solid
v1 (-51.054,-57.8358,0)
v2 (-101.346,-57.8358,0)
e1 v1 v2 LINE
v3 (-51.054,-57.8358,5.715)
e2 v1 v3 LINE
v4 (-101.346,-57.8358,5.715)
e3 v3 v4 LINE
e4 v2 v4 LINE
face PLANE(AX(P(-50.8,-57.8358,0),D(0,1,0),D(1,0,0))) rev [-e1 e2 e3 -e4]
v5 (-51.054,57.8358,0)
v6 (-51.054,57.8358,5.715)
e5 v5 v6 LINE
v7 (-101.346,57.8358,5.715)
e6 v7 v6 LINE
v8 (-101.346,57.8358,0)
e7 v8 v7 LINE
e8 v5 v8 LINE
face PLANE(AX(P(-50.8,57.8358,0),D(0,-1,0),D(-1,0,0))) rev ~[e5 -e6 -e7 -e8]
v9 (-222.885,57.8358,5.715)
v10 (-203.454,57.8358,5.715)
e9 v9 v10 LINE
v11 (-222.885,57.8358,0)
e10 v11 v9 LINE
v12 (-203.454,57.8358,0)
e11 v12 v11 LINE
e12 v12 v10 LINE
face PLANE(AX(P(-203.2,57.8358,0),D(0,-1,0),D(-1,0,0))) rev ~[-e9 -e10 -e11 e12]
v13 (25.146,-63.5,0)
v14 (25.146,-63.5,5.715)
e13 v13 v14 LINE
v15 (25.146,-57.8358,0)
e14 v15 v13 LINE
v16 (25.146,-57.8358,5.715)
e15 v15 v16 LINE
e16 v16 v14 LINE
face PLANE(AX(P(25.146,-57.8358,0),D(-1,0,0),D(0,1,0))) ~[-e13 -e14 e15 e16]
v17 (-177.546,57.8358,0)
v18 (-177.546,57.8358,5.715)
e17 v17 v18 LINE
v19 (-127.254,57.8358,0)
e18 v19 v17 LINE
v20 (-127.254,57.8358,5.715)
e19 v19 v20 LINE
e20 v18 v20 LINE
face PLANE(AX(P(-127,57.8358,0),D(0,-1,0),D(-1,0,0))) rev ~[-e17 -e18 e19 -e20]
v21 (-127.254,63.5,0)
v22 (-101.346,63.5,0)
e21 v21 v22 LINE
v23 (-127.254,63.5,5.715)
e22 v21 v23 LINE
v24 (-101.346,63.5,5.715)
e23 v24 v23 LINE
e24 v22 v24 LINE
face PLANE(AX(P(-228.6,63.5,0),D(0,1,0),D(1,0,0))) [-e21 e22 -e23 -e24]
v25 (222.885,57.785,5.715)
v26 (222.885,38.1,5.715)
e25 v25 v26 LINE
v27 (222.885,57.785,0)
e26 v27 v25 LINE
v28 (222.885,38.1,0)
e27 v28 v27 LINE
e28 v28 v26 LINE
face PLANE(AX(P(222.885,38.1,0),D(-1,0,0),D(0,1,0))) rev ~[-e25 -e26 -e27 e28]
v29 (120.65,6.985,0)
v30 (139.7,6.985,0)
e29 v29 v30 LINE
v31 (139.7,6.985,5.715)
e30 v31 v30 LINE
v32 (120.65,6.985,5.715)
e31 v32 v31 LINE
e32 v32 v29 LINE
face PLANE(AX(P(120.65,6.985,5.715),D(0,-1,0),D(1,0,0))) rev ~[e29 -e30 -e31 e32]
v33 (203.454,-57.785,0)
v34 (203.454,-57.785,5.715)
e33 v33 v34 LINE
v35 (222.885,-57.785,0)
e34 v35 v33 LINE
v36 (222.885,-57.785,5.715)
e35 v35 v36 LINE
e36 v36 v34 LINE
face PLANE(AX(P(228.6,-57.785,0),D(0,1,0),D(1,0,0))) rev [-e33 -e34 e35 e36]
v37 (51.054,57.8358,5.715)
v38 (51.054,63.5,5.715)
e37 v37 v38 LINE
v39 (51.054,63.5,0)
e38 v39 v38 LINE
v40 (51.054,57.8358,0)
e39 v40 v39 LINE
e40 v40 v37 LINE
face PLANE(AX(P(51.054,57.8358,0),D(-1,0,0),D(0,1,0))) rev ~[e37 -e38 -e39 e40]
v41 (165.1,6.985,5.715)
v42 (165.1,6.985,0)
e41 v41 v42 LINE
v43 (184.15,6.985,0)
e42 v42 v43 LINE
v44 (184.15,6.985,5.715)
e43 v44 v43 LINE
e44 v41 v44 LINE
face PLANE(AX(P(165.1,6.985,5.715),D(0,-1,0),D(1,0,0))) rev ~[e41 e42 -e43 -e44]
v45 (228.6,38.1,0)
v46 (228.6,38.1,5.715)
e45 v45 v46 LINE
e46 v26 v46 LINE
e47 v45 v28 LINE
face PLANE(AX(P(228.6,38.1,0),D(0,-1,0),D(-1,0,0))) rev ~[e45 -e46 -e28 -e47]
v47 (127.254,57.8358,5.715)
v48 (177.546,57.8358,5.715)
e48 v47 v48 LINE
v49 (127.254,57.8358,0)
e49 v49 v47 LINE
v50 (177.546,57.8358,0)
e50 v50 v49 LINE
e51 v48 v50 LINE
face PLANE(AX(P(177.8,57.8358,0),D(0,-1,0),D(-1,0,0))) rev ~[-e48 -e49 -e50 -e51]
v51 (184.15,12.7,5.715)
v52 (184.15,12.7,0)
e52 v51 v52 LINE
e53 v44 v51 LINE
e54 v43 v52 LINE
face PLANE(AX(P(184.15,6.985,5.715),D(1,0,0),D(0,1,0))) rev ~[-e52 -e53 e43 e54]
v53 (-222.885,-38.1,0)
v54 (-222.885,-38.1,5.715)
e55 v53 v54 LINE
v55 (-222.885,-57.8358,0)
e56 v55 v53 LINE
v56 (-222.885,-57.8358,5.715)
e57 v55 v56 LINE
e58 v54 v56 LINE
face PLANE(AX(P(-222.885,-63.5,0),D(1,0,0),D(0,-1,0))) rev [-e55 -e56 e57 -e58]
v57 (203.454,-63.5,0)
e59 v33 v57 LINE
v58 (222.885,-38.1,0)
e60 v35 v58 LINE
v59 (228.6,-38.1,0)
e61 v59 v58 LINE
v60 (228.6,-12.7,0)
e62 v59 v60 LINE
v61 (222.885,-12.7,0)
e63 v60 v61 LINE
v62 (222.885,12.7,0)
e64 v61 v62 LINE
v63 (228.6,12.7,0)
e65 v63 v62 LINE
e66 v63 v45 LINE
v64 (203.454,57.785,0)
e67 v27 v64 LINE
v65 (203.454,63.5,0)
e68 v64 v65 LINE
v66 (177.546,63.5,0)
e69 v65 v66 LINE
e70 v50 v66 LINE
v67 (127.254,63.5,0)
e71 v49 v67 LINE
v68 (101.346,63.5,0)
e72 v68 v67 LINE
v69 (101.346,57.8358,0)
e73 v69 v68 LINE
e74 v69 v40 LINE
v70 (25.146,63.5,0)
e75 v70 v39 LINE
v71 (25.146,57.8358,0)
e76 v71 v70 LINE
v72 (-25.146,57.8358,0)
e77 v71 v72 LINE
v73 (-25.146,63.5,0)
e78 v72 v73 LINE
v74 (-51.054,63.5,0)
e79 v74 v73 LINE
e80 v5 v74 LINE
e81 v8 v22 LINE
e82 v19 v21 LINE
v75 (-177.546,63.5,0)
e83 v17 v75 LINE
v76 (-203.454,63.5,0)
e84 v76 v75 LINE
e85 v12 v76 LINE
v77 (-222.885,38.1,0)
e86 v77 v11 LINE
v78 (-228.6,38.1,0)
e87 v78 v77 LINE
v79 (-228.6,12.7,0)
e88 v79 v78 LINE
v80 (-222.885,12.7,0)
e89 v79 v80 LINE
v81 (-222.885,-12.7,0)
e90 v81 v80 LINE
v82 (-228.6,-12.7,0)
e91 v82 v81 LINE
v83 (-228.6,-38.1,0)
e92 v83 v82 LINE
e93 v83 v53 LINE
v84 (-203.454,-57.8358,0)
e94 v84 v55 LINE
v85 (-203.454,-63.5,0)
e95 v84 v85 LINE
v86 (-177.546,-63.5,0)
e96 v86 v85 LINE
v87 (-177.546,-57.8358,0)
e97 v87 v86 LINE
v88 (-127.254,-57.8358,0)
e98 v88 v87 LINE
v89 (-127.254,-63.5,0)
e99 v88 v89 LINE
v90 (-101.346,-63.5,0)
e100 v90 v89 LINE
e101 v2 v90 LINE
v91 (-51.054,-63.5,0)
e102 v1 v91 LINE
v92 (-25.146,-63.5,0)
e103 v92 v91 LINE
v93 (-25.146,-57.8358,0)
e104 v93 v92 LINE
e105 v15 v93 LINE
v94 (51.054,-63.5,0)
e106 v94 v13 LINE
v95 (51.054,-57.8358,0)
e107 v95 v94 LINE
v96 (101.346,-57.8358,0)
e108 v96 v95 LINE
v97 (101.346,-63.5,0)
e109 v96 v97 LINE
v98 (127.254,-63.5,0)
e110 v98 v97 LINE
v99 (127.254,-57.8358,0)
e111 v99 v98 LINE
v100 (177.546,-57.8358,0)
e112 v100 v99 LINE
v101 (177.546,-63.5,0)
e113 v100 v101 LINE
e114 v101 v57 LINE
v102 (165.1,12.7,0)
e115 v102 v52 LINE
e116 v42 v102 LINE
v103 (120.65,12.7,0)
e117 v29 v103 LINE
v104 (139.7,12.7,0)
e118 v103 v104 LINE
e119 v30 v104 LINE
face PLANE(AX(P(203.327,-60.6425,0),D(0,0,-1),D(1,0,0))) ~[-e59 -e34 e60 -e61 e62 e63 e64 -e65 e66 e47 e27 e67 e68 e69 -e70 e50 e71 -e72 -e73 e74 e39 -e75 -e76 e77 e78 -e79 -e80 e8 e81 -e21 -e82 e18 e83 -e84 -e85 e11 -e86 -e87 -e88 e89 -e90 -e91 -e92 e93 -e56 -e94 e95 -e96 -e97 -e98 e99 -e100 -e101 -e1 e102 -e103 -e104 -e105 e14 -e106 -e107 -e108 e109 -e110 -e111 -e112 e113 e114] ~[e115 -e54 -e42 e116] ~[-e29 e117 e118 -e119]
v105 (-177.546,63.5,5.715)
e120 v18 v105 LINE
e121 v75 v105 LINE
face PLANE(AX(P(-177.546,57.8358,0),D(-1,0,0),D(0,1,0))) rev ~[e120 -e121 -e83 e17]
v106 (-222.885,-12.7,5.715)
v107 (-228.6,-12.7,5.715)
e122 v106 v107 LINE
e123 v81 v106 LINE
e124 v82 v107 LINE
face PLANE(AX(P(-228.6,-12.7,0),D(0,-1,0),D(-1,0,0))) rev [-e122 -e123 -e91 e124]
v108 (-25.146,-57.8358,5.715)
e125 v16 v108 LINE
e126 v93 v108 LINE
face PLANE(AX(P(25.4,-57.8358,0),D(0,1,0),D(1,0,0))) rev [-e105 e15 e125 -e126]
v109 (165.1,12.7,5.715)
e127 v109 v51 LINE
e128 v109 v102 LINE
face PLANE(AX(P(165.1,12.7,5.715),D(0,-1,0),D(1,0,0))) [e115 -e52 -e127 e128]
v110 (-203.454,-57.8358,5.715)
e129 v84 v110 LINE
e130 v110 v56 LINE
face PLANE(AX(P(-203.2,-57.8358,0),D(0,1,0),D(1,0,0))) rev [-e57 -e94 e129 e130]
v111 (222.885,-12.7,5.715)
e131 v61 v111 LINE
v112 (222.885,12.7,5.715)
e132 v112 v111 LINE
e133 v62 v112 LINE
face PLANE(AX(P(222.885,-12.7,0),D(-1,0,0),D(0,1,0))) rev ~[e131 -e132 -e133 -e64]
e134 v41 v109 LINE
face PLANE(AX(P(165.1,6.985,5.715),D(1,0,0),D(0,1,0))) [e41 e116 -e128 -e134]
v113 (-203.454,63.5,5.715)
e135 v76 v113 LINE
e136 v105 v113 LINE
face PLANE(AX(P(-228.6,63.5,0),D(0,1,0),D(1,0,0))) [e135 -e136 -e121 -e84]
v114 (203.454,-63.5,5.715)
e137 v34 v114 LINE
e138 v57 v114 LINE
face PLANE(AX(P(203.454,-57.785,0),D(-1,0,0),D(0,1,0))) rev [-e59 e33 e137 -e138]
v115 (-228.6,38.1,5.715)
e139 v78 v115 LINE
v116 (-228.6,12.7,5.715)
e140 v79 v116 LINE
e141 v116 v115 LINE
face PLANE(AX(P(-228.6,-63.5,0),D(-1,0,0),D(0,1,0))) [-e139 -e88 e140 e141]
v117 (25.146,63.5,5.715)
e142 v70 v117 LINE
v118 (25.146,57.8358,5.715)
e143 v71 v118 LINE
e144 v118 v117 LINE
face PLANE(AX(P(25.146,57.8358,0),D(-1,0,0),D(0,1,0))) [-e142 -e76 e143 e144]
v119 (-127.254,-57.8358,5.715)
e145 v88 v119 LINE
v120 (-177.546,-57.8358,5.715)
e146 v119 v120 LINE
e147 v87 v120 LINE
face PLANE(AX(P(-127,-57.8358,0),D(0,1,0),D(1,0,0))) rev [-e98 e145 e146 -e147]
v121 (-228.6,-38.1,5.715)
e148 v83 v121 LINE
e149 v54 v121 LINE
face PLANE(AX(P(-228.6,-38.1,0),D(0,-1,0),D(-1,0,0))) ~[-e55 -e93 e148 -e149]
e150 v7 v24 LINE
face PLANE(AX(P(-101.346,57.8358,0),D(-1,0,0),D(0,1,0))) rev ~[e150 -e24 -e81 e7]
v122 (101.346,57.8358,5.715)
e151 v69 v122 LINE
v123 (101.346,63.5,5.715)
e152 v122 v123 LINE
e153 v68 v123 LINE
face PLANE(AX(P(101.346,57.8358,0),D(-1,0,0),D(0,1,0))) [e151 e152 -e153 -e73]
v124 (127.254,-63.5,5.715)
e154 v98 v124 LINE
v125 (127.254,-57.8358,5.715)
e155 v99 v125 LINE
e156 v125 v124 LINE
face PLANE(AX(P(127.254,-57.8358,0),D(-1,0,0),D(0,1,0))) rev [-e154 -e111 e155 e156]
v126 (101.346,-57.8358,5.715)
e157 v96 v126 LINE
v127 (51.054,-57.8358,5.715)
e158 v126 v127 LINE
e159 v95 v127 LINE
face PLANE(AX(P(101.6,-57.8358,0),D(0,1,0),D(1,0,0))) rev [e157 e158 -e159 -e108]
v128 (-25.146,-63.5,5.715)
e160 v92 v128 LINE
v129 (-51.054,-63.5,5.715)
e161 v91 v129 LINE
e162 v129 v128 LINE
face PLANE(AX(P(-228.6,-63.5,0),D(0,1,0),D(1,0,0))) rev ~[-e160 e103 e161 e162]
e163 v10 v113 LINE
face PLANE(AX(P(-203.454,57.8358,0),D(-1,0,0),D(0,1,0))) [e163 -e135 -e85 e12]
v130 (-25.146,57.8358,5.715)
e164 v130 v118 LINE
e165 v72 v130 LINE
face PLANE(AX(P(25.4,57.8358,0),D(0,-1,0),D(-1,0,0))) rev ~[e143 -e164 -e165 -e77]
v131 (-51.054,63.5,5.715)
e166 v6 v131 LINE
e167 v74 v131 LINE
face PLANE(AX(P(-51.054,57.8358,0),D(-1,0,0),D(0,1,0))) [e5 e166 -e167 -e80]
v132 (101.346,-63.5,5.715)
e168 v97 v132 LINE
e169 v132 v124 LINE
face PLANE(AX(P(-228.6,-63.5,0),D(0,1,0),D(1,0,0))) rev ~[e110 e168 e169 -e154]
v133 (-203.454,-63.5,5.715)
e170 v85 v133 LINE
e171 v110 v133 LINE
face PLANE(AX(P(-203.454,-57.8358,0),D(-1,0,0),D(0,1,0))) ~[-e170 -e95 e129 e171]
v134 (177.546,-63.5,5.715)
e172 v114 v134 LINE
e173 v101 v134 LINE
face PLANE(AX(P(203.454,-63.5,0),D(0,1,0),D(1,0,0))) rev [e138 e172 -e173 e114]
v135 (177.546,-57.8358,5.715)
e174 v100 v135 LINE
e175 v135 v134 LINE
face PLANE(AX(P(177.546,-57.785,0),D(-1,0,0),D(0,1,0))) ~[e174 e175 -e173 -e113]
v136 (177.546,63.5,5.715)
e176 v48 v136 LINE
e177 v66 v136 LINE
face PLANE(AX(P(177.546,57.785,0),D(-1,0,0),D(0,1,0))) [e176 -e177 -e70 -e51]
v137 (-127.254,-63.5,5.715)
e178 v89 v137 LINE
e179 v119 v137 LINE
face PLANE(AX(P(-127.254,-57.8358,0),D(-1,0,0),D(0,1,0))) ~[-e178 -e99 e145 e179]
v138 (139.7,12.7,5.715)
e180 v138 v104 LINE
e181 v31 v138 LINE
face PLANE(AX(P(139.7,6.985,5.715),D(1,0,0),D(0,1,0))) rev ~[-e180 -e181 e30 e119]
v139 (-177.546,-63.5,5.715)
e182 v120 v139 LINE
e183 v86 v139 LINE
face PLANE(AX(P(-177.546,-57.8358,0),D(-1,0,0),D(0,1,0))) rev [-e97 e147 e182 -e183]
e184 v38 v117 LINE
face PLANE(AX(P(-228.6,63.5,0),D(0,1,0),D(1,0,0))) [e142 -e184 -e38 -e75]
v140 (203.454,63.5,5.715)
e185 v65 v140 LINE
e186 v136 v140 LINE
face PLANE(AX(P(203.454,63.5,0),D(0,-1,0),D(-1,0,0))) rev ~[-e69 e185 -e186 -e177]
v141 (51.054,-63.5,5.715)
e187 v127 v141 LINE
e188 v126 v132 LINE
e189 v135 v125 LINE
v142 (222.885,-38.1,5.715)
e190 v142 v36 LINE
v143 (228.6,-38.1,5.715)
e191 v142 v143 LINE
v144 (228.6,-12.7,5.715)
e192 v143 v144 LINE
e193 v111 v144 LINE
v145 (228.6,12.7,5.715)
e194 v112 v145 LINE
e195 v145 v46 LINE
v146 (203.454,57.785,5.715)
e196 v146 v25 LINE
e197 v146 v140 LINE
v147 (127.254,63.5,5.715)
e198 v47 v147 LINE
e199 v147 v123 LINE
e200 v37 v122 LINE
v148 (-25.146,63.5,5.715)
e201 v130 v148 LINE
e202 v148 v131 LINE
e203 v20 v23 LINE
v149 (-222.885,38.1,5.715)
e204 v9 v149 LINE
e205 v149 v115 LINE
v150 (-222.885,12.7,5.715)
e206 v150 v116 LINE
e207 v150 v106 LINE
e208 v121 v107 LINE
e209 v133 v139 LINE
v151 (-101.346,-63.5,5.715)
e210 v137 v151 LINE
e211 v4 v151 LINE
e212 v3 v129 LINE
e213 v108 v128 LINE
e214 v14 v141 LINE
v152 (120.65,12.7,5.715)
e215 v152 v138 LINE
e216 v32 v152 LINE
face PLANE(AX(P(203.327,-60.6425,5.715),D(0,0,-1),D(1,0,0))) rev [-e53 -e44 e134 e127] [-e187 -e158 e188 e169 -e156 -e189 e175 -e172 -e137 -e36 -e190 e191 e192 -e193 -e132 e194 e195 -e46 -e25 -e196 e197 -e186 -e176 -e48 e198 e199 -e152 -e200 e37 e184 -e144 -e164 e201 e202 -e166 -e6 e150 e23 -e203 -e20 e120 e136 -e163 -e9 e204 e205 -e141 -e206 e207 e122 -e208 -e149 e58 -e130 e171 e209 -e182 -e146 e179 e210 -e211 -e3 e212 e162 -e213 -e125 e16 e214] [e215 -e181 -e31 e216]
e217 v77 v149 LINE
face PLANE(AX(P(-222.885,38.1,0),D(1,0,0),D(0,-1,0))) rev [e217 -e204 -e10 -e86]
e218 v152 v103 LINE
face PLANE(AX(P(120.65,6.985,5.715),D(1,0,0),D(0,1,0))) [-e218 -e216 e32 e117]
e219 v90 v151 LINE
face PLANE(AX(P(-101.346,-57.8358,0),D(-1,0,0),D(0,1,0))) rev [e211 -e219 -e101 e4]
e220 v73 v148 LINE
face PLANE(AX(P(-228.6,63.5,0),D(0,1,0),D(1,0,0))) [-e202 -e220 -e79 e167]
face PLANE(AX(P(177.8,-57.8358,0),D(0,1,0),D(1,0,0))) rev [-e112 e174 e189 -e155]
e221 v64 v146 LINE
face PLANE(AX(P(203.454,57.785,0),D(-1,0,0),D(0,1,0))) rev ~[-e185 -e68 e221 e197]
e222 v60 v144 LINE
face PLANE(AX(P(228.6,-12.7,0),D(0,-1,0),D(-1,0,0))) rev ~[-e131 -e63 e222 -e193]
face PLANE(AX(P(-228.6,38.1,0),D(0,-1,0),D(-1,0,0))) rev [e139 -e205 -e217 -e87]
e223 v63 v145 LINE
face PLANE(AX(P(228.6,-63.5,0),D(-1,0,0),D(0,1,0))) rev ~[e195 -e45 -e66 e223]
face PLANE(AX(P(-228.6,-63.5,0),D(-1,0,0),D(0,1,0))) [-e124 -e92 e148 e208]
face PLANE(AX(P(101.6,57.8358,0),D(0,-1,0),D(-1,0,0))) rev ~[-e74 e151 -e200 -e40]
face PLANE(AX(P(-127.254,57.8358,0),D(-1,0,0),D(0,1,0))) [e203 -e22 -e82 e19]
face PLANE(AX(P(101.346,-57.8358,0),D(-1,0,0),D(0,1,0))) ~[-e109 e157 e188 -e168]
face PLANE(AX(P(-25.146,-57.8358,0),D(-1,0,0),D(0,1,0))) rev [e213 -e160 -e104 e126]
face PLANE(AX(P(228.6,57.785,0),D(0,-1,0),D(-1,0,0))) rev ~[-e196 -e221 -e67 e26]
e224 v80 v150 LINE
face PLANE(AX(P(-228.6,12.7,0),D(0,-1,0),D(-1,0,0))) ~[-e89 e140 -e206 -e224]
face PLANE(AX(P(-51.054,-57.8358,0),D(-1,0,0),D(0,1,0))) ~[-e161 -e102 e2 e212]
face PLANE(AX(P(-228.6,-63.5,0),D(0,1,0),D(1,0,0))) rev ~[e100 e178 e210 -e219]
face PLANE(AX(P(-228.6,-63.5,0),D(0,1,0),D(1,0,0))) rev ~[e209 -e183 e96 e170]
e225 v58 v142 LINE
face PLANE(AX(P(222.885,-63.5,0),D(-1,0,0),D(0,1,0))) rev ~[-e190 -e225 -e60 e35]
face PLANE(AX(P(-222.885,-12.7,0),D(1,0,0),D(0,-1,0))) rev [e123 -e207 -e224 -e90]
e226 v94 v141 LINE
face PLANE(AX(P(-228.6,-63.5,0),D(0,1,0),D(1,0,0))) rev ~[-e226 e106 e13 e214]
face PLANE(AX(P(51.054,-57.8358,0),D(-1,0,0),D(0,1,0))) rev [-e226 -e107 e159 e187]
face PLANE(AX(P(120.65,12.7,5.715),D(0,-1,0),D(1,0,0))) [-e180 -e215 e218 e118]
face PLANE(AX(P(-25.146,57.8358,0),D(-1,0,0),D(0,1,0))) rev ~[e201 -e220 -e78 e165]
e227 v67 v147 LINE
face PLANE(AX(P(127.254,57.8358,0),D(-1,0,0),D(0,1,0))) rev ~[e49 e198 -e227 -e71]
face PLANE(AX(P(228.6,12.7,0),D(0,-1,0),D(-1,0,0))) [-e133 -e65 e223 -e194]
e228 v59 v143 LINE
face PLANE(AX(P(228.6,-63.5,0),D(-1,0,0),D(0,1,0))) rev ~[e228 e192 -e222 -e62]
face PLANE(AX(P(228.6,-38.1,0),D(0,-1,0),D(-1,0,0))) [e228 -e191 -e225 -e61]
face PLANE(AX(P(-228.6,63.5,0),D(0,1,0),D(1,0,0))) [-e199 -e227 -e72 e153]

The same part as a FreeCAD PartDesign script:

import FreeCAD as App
import Part
import Sketcher

V = App.Vector
Q = App.Units.Quantity

doc = App.newDocument("Part")
body = doc.addObject("PartDesign::Body", "Body")

# Sketch on XY plane
sketch1 = body.newObject("Sketcher::SketchObject", "Sketch")
sketch1.AttachmentSupport = (doc.getObject("XY_Plane"), [""])
sketch1.MapMode = "FlatFace"
sketch1.addGeometry([
    Part.LineSegment(V(-229, 64, 0), V(-229, -64, 0)),
    Part.LineSegment(V(-229, -64, 0), V(229, -64, 0)),
    Part.LineSegment(V(229, -64, 0), V(229, 64, 0)),
    Part.LineSegment(V(229, 64, 0), V(-229, 64, 0)),
], False)
sketch1.addConstraint([
    Sketcher.Constraint("Coincident", 0, 2, 1, 1),
    Sketcher.Constraint("Coincident", 1, 2, 2, 1),
    Sketcher.Constraint("Coincident", 2, 2, 3, 1),
    Sketcher.Constraint("Coincident", 3, 2, 0, 1),
    Sketcher.Constraint("Vertical", 0),
    Sketcher.Constraint("Horizontal", 1),
    Sketcher.Constraint("Vertical", 2),
    Sketcher.Constraint("Horizontal", 3),
    Sketcher.Constraint("Symmetric", 0, 2, 2, 2, -1, 1),
    Sketcher.Constraint("DistanceX", 1, 1, 1, 2, Q("18 in")),
    Sketcher.Constraint("DistanceY", 0, 2, 0, 1, Q("5 in")),
])
pad1 = body.newObject("PartDesign::Pad", "Pad")
pad1.Profile = sketch1
pad1.Length = Q("0.225 in")

# Sketch on XY plane
sketch2 = body.newObject("Sketcher::SketchObject", "Sketch001")
sketch2.AttachmentSupport = (doc.getObject("XY_Plane"), [""])
sketch2.MapMode = "FlatFace"
sketch2.AttachmentOffset = App.Placement(V(0, 0, 0.225 * 25.4), App.Rotation())
sketch2.addGeometry([
    Part.LineSegment(V(165, 13, 0), V(165, 7, 0)),  # 0
    Part.LineSegment(V(165, 7, 0), V(184, 7, 0)),  # 1
    Part.LineSegment(V(184, 7, 0), V(184, 13, 0)),  # 2
    Part.LineSegment(V(184, 13, 0), V(165, 13, 0)),  # 3
    Part.LineSegment(V(121, 13, 0), V(121, 7, 0)),  # 4
    Part.LineSegment(V(121, 7, 0), V(140, 7, 0)),  # 5
    Part.LineSegment(V(140, 7, 0), V(140, 13, 0)),  # 6
    Part.LineSegment(V(140, 13, 0), V(121, 13, 0)),  # 7
], False)
sketch2.addConstraint([
    Sketcher.Constraint("Coincident", 0, 2, 1, 1),
    Sketcher.Constraint("Coincident", 1, 2, 2, 1),
    Sketcher.Constraint("Coincident", 2, 2, 3, 1),
    Sketcher.Constraint("Coincident", 3, 2, 0, 1),
    Sketcher.Constraint("Coincident", 4, 2, 5, 1),
    Sketcher.Constraint("Coincident", 5, 2, 6, 1),
    Sketcher.Constraint("Coincident", 6, 2, 7, 1),
    Sketcher.Constraint("Coincident", 7, 2, 4, 1),
    Sketcher.Constraint("Vertical", 0),
    Sketcher.Constraint("Horizontal", 1),
    Sketcher.Constraint("Vertical", 2),
    Sketcher.Constraint("Horizontal", 3),
    Sketcher.Constraint("Vertical", 4),
    Sketcher.Constraint("Horizontal", 5),
    Sketcher.Constraint("Vertical", 6),
    Sketcher.Constraint("Horizontal", 7),
    Sketcher.Constraint("Horizontal", 1, 2, 4, 2),
    Sketcher.Constraint("Horizontal", 3, 2, 6, 2),
    Sketcher.Constraint("Equal", 3, 5),
    Sketcher.Constraint("DistanceX", 5, 2, 0, 2, Q("1 in")),
    Sketcher.Constraint("DistanceX", 1, 1, 1, 2, Q("0.75 in")),
    Sketcher.Constraint("DistanceX", -1, 1, 0, 2, Q("6.5 in")),
    Sketcher.Constraint("DistanceY", -1, 1, 2, 2, Q("0.5 in")),
    Sketcher.Constraint("DistanceY", 0, 2, 0, 1, Q("0.225 in")),
])
pocket1 = body.newObject("PartDesign::Pocket", "Pocket")
pocket1.Profile = sketch2
pocket1.Type = "ThroughAll"

# Sketch on XY plane
sketch3 = body.newObject("Sketcher::SketchObject", "Sketch002")
sketch3.AttachmentSupport = (doc.getObject("XY_Plane"), [""])
sketch3.MapMode = "FlatFace"
sketch3.addGeometry([
    Part.LineSegment(V(229, 64, 0), V(229, 38, 0)),  # 0
    Part.LineSegment(V(229, 38, 0), V(223, 38, 0)),  # 1
    Part.LineSegment(V(223, 38, 0), V(223, 64, 0)),  # 2
    Part.LineSegment(V(223, 64, 0), V(229, 64, 0)),  # 3
    Part.LineSegment(V(229, 13, 0), V(229, -13, 0)),  # 4
    Part.LineSegment(V(229, -13, 0), V(223, -13, 0)),  # 5
    Part.LineSegment(V(223, -13, 0), V(223, 13, 0)),  # 6
    Part.LineSegment(V(223, 13, 0), V(229, 13, 0)),  # 7
    Part.LineSegment(V(229, -38, 0), V(229, -64, 0)),  # 8
    Part.LineSegment(V(229, -64, 0), V(223, -64, 0)),  # 9
    Part.LineSegment(V(223, -64, 0), V(223, -38, 0)),  # 10
    Part.LineSegment(V(223, -38, 0), V(229, -38, 0)),  # 11
], False)
sketch3.addConstraint([
    Sketcher.Constraint("Coincident", 0, 2, 1, 1),
    Sketcher.Constraint("Coincident", 1, 2, 2, 1),
    Sketcher.Constraint("Coincident", 2, 2, 3, 1),
    Sketcher.Constraint("Coincident", 3, 2, 0, 1),
    Sketcher.Constraint("Coincident", 4, 2, 5, 1),
    Sketcher.Constraint("Coincident", 5, 2, 6, 1),
    Sketcher.Constraint("Coincident", 6, 2, 7, 1),
    Sketcher.Constraint("Coincident", 7, 2, 4, 1),
    Sketcher.Constraint("Coincident", 8, 2, 9, 1),
    Sketcher.Constraint("Coincident", 9, 2, 10, 1),
    Sketcher.Constraint("Coincident", 10, 2, 11, 1),
    Sketcher.Constraint("Coincident", 11, 2, 8, 1),
    Sketcher.Constraint("Vertical", 0),
    Sketcher.Constraint("Horizontal", 1),
    Sketcher.Constraint("Vertical", 2),
    Sketcher.Constraint("Horizontal", 3),
    Sketcher.Constraint("Vertical", 4),
    Sketcher.Constraint("Horizontal", 5),
    Sketcher.Constraint("Vertical", 6),
    Sketcher.Constraint("Horizontal", 7),
    Sketcher.Constraint("Vertical", 8),
    Sketcher.Constraint("Horizontal", 9),
    Sketcher.Constraint("Vertical", 10),
    Sketcher.Constraint("Horizontal", 11),
    Sketcher.Constraint("Symmetric", 3, 2, 8, 2, -1),
    Sketcher.Constraint("Symmetric", 1, 2, 10, 2, -1),
    Sketcher.Constraint("Vertical", 3, 2, 4, 2),
    Sketcher.Constraint("Vertical", 2, 2, 5, 2),
    Sketcher.Constraint("Equal", 2, 4),
    Sketcher.Constraint("DistanceY", 0, 2, 0, 1, Q("1 in")),
    Sketcher.Constraint("DistanceX", -1, 1, 0, 2, Q("9 in")),
    Sketcher.Constraint("DistanceY", 4, 2, 0, 2, Q("2 in")),
    Sketcher.Constraint("DistanceY", 8, 2, 4, 2, Q("2 in")),
    Sketcher.Constraint("DistanceX", 1, 2, 1, 1, Q("0.225 in")),
])
pocket2 = body.newObject("PartDesign::Pocket", "Pocket001")
pocket2.Profile = sketch3
pocket2.Type = "ThroughAll"
pocket2.Reversed = True
doc.recompute()

mirrored = body.newObject("PartDesign::Mirrored", "Mirrored")
mirrored.Originals = [pocket2]
mirrored.MirrorPlane = (doc.getObject("YZ_Plane"), [""])
body.Tip = mirrored

# Sketch on XY plane
sketch4 = body.newObject("Sketcher::SketchObject", "Sketch003")
sketch4.AttachmentSupport = (doc.getObject("XY_Plane"), [""])
sketch4.MapMode = "FlatFace"
sketch4.addGeometry([
    Part.LineSegment(V(178, 64, 0), V(178, 58, 0)),  # 0
    Part.LineSegment(V(178, 58, 0), V(127, 58, 0)),  # 1
    Part.LineSegment(V(127, 58, 0), V(127, 64, 0)),  # 2
    Part.LineSegment(V(127, 64, 0), V(178, 64, 0)),  # 3
    Part.LineSegment(V(102, 64, 0), V(102, 58, 0)),  # 4
    Part.LineSegment(V(102, 58, 0), V(51, 58, 0)),  # 5
    Part.LineSegment(V(51, 58, 0), V(51, 64, 0)),  # 6
    Part.LineSegment(V(51, 64, 0), V(102, 64, 0)),  # 7
    Part.LineSegment(V(25, 64, 0), V(25, 58, 0)),  # 8
    Part.LineSegment(V(25, 58, 0), V(-25, 58, 0)),  # 9
    Part.LineSegment(V(-25, 58, 0), V(-25, 64, 0)),  # 10
    Part.LineSegment(V(-25, 64, 0), V(25, 64, 0)),  # 11
    Part.LineSegment(V(-51, 64, 0), V(-51, 58, 0)),  # 12
    Part.LineSegment(V(-51, 58, 0), V(-102, 58, 0)),  # 13
    Part.LineSegment(V(-102, 58, 0), V(-102, 64, 0)),  # 14
    Part.LineSegment(V(-102, 64, 0), V(-51, 64, 0)),  # 15
    Part.LineSegment(V(-127, 64, 0), V(-127, 58, 0)),  # 16
    Part.LineSegment(V(-127, 58, 0), V(-178, 58, 0)),  # 17
    Part.LineSegment(V(-178, 58, 0), V(-178, 64, 0)),  # 18
    Part.LineSegment(V(-178, 64, 0), V(-127, 64, 0)),  # 19
    Part.LineSegment(V(-203, 64, 0), V(-203, 58, 0)),  # 20
    Part.LineSegment(V(-203, 58, 0), V(-254, 58, 0)),  # 21
    Part.LineSegment(V(-254, 58, 0), V(-254, 64, 0)),  # 22
    Part.LineSegment(V(-254, 64, 0), V(-203, 64, 0)),  # 23
    Part.LineSegment(V(229, 64, 0), V(229, 58, 0)),  # 24
    Part.LineSegment(V(229, 58, 0), V(203, 58, 0)),  # 25
    Part.LineSegment(V(203, 58, 0), V(203, 64, 0)),  # 26
    Part.LineSegment(V(203, 64, 0), V(229, 64, 0)),  # 27
], False)
sketch4.addConstraint([
    Sketcher.Constraint("Coincident", 0, 2, 1, 1),
    Sketcher.Constraint("Coincident", 1, 2, 2, 1),
    Sketcher.Constraint("Coincident", 2, 2, 3, 1),
    Sketcher.Constraint("Coincident", 3, 2, 0, 1),
    Sketcher.Constraint("Coincident", 4, 2, 5, 1),
    Sketcher.Constraint("Coincident", 5, 2, 6, 1),
    Sketcher.Constraint("Coincident", 6, 2, 7, 1),
    Sketcher.Constraint("Coincident", 7, 2, 4, 1),
    Sketcher.Constraint("Coincident", 8, 2, 9, 1),
    Sketcher.Constraint("Coincident", 9, 2, 10, 1),
    Sketcher.Constraint("Coincident", 10, 2, 11, 1),
    Sketcher.Constraint("Coincident", 11, 2, 8, 1),
    Sketcher.Constraint("Coincident", 12, 2, 13, 1),
    Sketcher.Constraint("Coincident", 13, 2, 14, 1),
    Sketcher.Constraint("Coincident", 14, 2, 15, 1),
    Sketcher.Constraint("Coincident", 15, 2, 12, 1),
    Sketcher.Constraint("Coincident", 16, 2, 17, 1),
    Sketcher.Constraint("Coincident", 17, 2, 18, 1),
    Sketcher.Constraint("Coincident", 18, 2, 19, 1),
    Sketcher.Constraint("Coincident", 19, 2, 16, 1),
    Sketcher.Constraint("Coincident", 20, 2, 21, 1),
    Sketcher.Constraint("Coincident", 21, 2, 22, 1),
    Sketcher.Constraint("Coincident", 22, 2, 23, 1),
    Sketcher.Constraint("Coincident", 23, 2, 20, 1),
    Sketcher.Constraint("Coincident", 24, 2, 25, 1),
    Sketcher.Constraint("Coincident", 25, 2, 26, 1),
    Sketcher.Constraint("Coincident", 26, 2, 27, 1),
    Sketcher.Constraint("Coincident", 27, 2, 24, 1),
    Sketcher.Constraint("Vertical", 0),
    Sketcher.Constraint("Horizontal", 1),
    Sketcher.Constraint("Vertical", 2),
    Sketcher.Constraint("Horizontal", 3),
    Sketcher.Constraint("Vertical", 4),
    Sketcher.Constraint("Horizontal", 5),
    Sketcher.Constraint("Vertical", 6),
    Sketcher.Constraint("Horizontal", 7),
    Sketcher.Constraint("Vertical", 8),
    Sketcher.Constraint("Horizontal", 9),
    Sketcher.Constraint("Vertical", 10),
    Sketcher.Constraint("Horizontal", 11),
    Sketcher.Constraint("Vertical", 12),
    Sketcher.Constraint("Horizontal", 13),
    Sketcher.Constraint("Vertical", 14),
    Sketcher.Constraint("Horizontal", 15),
    Sketcher.Constraint("Vertical", 16),
    Sketcher.Constraint("Horizontal", 17),
    Sketcher.Constraint("Vertical", 18),
    Sketcher.Constraint("Horizontal", 19),
    Sketcher.Constraint("Vertical", 20),
    Sketcher.Constraint("Horizontal", 21),
    Sketcher.Constraint("Vertical", 22),
    Sketcher.Constraint("Horizontal", 23),
    Sketcher.Constraint("Vertical", 24),
    Sketcher.Constraint("Horizontal", 25),
    Sketcher.Constraint("Vertical", 26),
    Sketcher.Constraint("Horizontal", 27),
    Sketcher.Constraint("Symmetric", 5, 2, 12, 2, -2),
    Sketcher.Constraint("Symmetric", 7, 2, 14, 2, -2),
    Sketcher.Constraint("Symmetric", 1, 2, 16, 2, -2),
    Sketcher.Constraint("Symmetric", 3, 2, 18, 2, -2),
    Sketcher.Constraint("Symmetric", 23, 2, 26, 2, -2),
    Sketcher.Constraint("Horizontal", 1, 2, 4, 2),
    Sketcher.Constraint("Horizontal", 3, 2, 6, 2),
    Sketcher.Constraint("Horizontal", 5, 2, 8, 2),
    Sketcher.Constraint("Horizontal", 7, 2, 10, 2),
    Sketcher.Constraint("Horizontal", 17, 2, 20, 2),
    Sketcher.Constraint("Horizontal", 19, 2, 22, 2),
    Sketcher.Constraint("Equal", 3, 5),
    Sketcher.Constraint("Equal", 7, 9),
    Sketcher.Constraint("Equal", 19, 21),
    Sketcher.Constraint("DistanceX", 1, 2, 1, 1, Q("2 in")),
    Sketcher.Constraint("DistanceX", 25, 2, 25, 1, Q("1 in")),
    Sketcher.Constraint("DistanceX", -1, 1, 0, 2, Q("7 in")),
    Sketcher.Constraint("DistanceX", -1, 1, 4, 2, Q("4 in")),
    Sketcher.Constraint("DistanceX", -1, 1, 8, 2, Q("1 in")),
    Sketcher.Constraint("DistanceX", 20, 2, -1, 1, Q("8 in")),
    Sketcher.Constraint("DistanceY", -1, 1, 2, 2, Q("2.5 in")),
    Sketcher.Constraint("DistanceY", 0, 2, 0, 1, Q("0.223 in")),
    Sketcher.Constraint("DistanceY", 24, 2, 24, 1, Q("0.225 in")),
])
pocket3 = body.newObject("PartDesign::Pocket", "Pocket002")
pocket3.Profile = sketch4
pocket3.Type = "ThroughAll"
pocket3.Reversed = True

# Sketch on XY plane
sketch5 = body.newObject("Sketcher::SketchObject", "Sketch004")
sketch5.AttachmentSupport = (doc.getObject("XY_Plane"), [""])
sketch5.MapMode = "FlatFace"
sketch5.addGeometry([
    Part.LineSegment(V(203.45, 63.5, 0), V(203.45, 57.78, 0)),  # 0
    Part.LineSegment(V(203.45, 57.78, 0), V(203.2, 57.78, 0)),  # 1
    Part.LineSegment(V(203.2, 57.78, 0), V(203.2, 63.5, 0)),  # 2
    Part.LineSegment(V(203.2, 63.5, 0), V(203.45, 63.5, 0)),  # 3
    Part.LineSegment(V(177.8, 63.5, 0), V(177.8, 57.78, 0)),  # 4
    Part.LineSegment(V(177.8, 57.78, 0), V(177.55, 57.78, 0)),  # 5
    Part.LineSegment(V(177.55, 57.78, 0), V(177.55, 63.5, 0)),  # 6
    Part.LineSegment(V(177.55, 63.5, 0), V(177.8, 63.5, 0)),  # 7
    Part.LineSegment(V(127.25, 63.5, 0), V(127.25, 57.84, 0)),  # 8
    Part.LineSegment(V(127.25, 57.84, 0), V(127, 57.84, 0)),  # 9
    Part.LineSegment(V(127, 57.84, 0), V(127, 63.5, 0)),  # 10
    Part.LineSegment(V(127, 63.5, 0), V(127.25, 63.5, 0)),  # 11
    Part.LineSegment(V(101.6, 63.5, 0), V(101.6, 57.84, 0)),  # 12
    Part.LineSegment(V(101.6, 57.84, 0), V(101.35, 57.84, 0)),  # 13
    Part.LineSegment(V(101.35, 57.84, 0), V(101.35, 63.5, 0)),  # 14
    Part.LineSegment(V(101.35, 63.5, 0), V(101.6, 63.5, 0)),  # 15
    Part.LineSegment(V(51.05, 63.5, 0), V(51.05, 57.84, 0)),  # 16
    Part.LineSegment(V(51.05, 57.84, 0), V(50.8, 57.84, 0)),  # 17
    Part.LineSegment(V(50.8, 57.84, 0), V(50.8, 63.5, 0)),  # 18
    Part.LineSegment(V(50.8, 63.5, 0), V(51.05, 63.5, 0)),  # 19
    Part.LineSegment(V(25.4, 63.5, 0), V(25.4, 57.84, 0)),  # 20
    Part.LineSegment(V(25.4, 57.84, 0), V(25.15, 57.84, 0)),  # 21
    Part.LineSegment(V(25.15, 57.84, 0), V(25.15, 63.5, 0)),  # 22
    Part.LineSegment(V(25.15, 63.5, 0), V(25.4, 63.5, 0)),  # 23
    Part.LineSegment(V(-25.15, 63.5, 0), V(-25.15, 57.84, 0)),  # 24
    Part.LineSegment(V(-25.15, 57.84, 0), V(-25.4, 57.84, 0)),  # 25
    Part.LineSegment(V(-25.4, 57.84, 0), V(-25.4, 63.5, 0)),  # 26
    Part.LineSegment(V(-25.4, 63.5, 0), V(-25.15, 63.5, 0)),  # 27
    Part.LineSegment(V(-50.8, 63.5, 0), V(-50.8, 57.84, 0)),  # 28
    Part.LineSegment(V(-50.8, 57.84, 0), V(-51.05, 57.84, 0)),  # 29
    Part.LineSegment(V(-51.05, 57.84, 0), V(-51.05, 63.5, 0)),  # 30
    Part.LineSegment(V(-51.05, 63.5, 0), V(-50.8, 63.5, 0)),  # 31
    Part.LineSegment(V(-101.35, 63.5, 0), V(-101.35, 57.84, 0)),  # 32
    Part.LineSegment(V(-101.35, 57.84, 0), V(-101.6, 57.84, 0)),  # 33
    Part.LineSegment(V(-101.6, 57.84, 0), V(-101.6, 63.5, 0)),  # 34
    Part.LineSegment(V(-101.6, 63.5, 0), V(-101.35, 63.5, 0)),  # 35
    Part.LineSegment(V(-127, 63.5, 0), V(-127, 57.84, 0)),  # 36
    Part.LineSegment(V(-127, 57.84, 0), V(-127.25, 57.84, 0)),  # 37
    Part.LineSegment(V(-127.25, 57.84, 0), V(-127.25, 63.5, 0)),  # 38
    Part.LineSegment(V(-127.25, 63.5, 0), V(-127, 63.5, 0)),  # 39
    Part.LineSegment(V(-177.55, 63.5, 0), V(-177.55, 57.84, 0)),  # 40
    Part.LineSegment(V(-177.55, 57.84, 0), V(-177.8, 57.84, 0)),  # 41
    Part.LineSegment(V(-177.8, 57.84, 0), V(-177.8, 63.5, 0)),  # 42
    Part.LineSegment(V(-177.8, 63.5, 0), V(-177.55, 63.5, 0)),  # 43
    Part.LineSegment(V(-203.2, 63.5, 0), V(-203.2, 57.84, 0)),  # 44
    Part.LineSegment(V(-203.2, 57.84, 0), V(-203.45, 57.84, 0)),  # 45
    Part.LineSegment(V(-203.45, 57.84, 0), V(-203.45, 63.5, 0)),  # 46
    Part.LineSegment(V(-203.45, 63.5, 0), V(-203.2, 63.5, 0)),  # 47
], False)
sketch5.addConstraint([
    Sketcher.Constraint("Coincident", 0, 2, 1, 1),
    Sketcher.Constraint("Coincident", 1, 2, 2, 1),
    Sketcher.Constraint("Coincident", 2, 2, 3, 1),
    Sketcher.Constraint("Coincident", 3, 2, 0, 1),
    Sketcher.Constraint("Coincident", 4, 2, 5, 1),
    Sketcher.Constraint("Coincident", 5, 2, 6, 1),
    Sketcher.Constraint("Coincident", 6, 2, 7, 1),
    Sketcher.Constraint("Coincident", 7, 2, 4, 1),
    Sketcher.Constraint("Coincident", 8, 2, 9, 1),
    Sketcher.Constraint("Coincident", 9, 2, 10, 1),
    Sketcher.Constraint("Coincident", 10, 2, 11, 1),
    Sketcher.Constraint("Coincident", 11, 2, 8, 1),
    Sketcher.Constraint("Coincident", 12, 2, 13, 1),
    Sketcher.Constraint("Coincident", 13, 2, 14, 1),
    Sketcher.Constraint("Coincident", 14, 2, 15, 1),
    Sketcher.Constraint("Coincident", 15, 2, 12, 1),
    Sketcher.Constraint("Coincident", 16, 2, 17, 1),
    Sketcher.Constraint("Coincident", 17, 2, 18, 1),
    Sketcher.Constraint("Coincident", 18, 2, 19, 1),
    Sketcher.Constraint("Coincident", 19, 2, 16, 1),
    Sketcher.Constraint("Coincident", 20, 2, 21, 1),
    Sketcher.Constraint("Coincident", 21, 2, 22, 1),
    Sketcher.Constraint("Coincident", 22, 2, 23, 1),
    Sketcher.Constraint("Coincident", 23, 2, 20, 1),
    Sketcher.Constraint("Coincident", 24, 2, 25, 1),
    Sketcher.Constraint("Coincident", 25, 2, 26, 1),
    Sketcher.Constraint("Coincident", 26, 2, 27, 1),
    Sketcher.Constraint("Coincident", 27, 2, 24, 1),
    Sketcher.Constraint("Coincident", 28, 2, 29, 1),
    Sketcher.Constraint("Coincident", 29, 2, 30, 1),
    Sketcher.Constraint("Coincident", 30, 2, 31, 1),
    Sketcher.Constraint("Coincident", 31, 2, 28, 1),
    Sketcher.Constraint("Coincident", 32, 2, 33, 1),
    Sketcher.Constraint("Coincident", 33, 2, 34, 1),
    Sketcher.Constraint("Coincident", 34, 2, 35, 1),
    Sketcher.Constraint("Coincident", 35, 2, 32, 1),
    Sketcher.Constraint("Coincident", 36, 2, 37, 1),
    Sketcher.Constraint("Coincident", 37, 2, 38, 1),
    Sketcher.Constraint("Coincident", 38, 2, 39, 1),
    Sketcher.Constraint("Coincident", 39, 2, 36, 1),
    Sketcher.Constraint("Coincident", 40, 2, 41, 1),
    Sketcher.Constraint("Coincident", 41, 2, 42, 1),
    Sketcher.Constraint("Coincident", 42, 2, 43, 1),
    Sketcher.Constraint("Coincident", 43, 2, 40, 1),
    Sketcher.Constraint("Coincident", 44, 2, 45, 1),
    Sketcher.Constraint("Coincident", 45, 2, 46, 1),
    Sketcher.Constraint("Coincident", 46, 2, 47, 1),
    Sketcher.Constraint("Coincident", 47, 2, 44, 1),
    Sketcher.Constraint("Vertical", 0),
    Sketcher.Constraint("Horizontal", 1),
    Sketcher.Constraint("Vertical", 2),
    Sketcher.Constraint("Horizontal", 3),
    Sketcher.Constraint("Vertical", 4),
    Sketcher.Constraint("Horizontal", 5),
    Sketcher.Constraint("Vertical", 6),
    Sketcher.Constraint("Horizontal", 7),
    Sketcher.Constraint("Vertical", 8),
    Sketcher.Constraint("Horizontal", 9),
    Sketcher.Constraint("Vertical", 10),
    Sketcher.Constraint("Horizontal", 11),
    Sketcher.Constraint("Vertical", 12),
    Sketcher.Constraint("Horizontal", 13),
    Sketcher.Constraint("Vertical", 14),
    Sketcher.Constraint("Horizontal", 15),
    Sketcher.Constraint("Vertical", 16),
    Sketcher.Constraint("Horizontal", 17),
    Sketcher.Constraint("Vertical", 18),
    Sketcher.Constraint("Horizontal", 19),
    Sketcher.Constraint("Vertical", 20),
    Sketcher.Constraint("Horizontal", 21),
    Sketcher.Constraint("Vertical", 22),
    Sketcher.Constraint("Horizontal", 23),
    Sketcher.Constraint("Vertical", 24),
    Sketcher.Constraint("Horizontal", 25),
    Sketcher.Constraint("Vertical", 26),
    Sketcher.Constraint("Horizontal", 27),
    Sketcher.Constraint("Vertical", 28),
    Sketcher.Constraint("Horizontal", 29),
    Sketcher.Constraint("Vertical", 30),
    Sketcher.Constraint("Horizontal", 31),
    Sketcher.Constraint("Vertical", 32),
    Sketcher.Constraint("Horizontal", 33),
    Sketcher.Constraint("Vertical", 34),
    Sketcher.Constraint("Horizontal", 35),
    Sketcher.Constraint("Vertical", 36),
    Sketcher.Constraint("Horizontal", 37),
    Sketcher.Constraint("Vertical", 38),
    Sketcher.Constraint("Horizontal", 39),
    Sketcher.Constraint("Vertical", 40),
    Sketcher.Constraint("Horizontal", 41),
    Sketcher.Constraint("Vertical", 42),
    Sketcher.Constraint("Horizontal", 43),
    Sketcher.Constraint("Vertical", 44),
    Sketcher.Constraint("Horizontal", 45),
    Sketcher.Constraint("Vertical", 46),
    Sketcher.Constraint("Horizontal", 47),
    Sketcher.Constraint("Symmetric", 21, 2, 24, 2, -2),
    Sketcher.Constraint("Symmetric", 23, 2, 26, 2, -2),
    Sketcher.Constraint("Symmetric", 17, 2, 28, 2, -2),
    Sketcher.Constraint("Symmetric", 19, 2, 30, 2, -2),
    Sketcher.Constraint("Symmetric", 13, 2, 32, 2, -2),
    Sketcher.Constraint("Symmetric", 15, 2, 34, 2, -2),
    Sketcher.Constraint("Symmetric", 9, 2, 36, 2, -2),
    Sketcher.Constraint("Symmetric", 11, 2, 38, 2, -2),
    Sketcher.Constraint("Symmetric", 7, 2, 42, 2, -2),
    Sketcher.Constraint("Symmetric", 3, 2, 46, 2, -2),
    Sketcher.Constraint("Horizontal", 1, 2, 4, 2),
    Sketcher.Constraint("Horizontal", 3, 2, 6, 2),
    Sketcher.Constraint("Horizontal", 7, 2, 10, 2),
    Sketcher.Constraint("Horizontal", 9, 2, 12, 2),
    Sketcher.Constraint("Horizontal", 11, 2, 14, 2),
    Sketcher.Constraint("Horizontal", 13, 2, 16, 2),
    Sketcher.Constraint("Horizontal", 15, 2, 18, 2),
    Sketcher.Constraint("Horizontal", 17, 2, 20, 2),
    Sketcher.Constraint("Horizontal", 19, 2, 22, 2),
    Sketcher.Constraint("Horizontal", 37, 2, 40, 2),
    Sketcher.Constraint("Horizontal", 41, 2, 44, 2),
    Sketcher.Constraint("Equal", 3, 5),
    Sketcher.Constraint("Equal", 7, 9),
    Sketcher.Constraint("Equal", 11, 13),
    Sketcher.Constraint("Equal", 15, 17),
    Sketcher.Constraint("Equal", 19, 21),
    Sketcher.Constraint("Equal", 39, 41),
    Sketcher.Constraint("Equal", 43, 45),
    Sketcher.Constraint("DistanceX", -1, 1, 1, 2, Q("8 in")),
    Sketcher.Constraint("DistanceX", -1, 1, 4, 2, Q("7 in")),
    Sketcher.Constraint("DistanceX", -1, 1, 9, 2, Q("5 in")),
    Sketcher.Constraint("DistanceX", -1, 1, 12, 2, Q("4 in")),
    Sketcher.Constraint("DistanceX", -1, 1, 17, 2, Q("2 in")),
    Sketcher.Constraint("DistanceX", -1, 1, 20, 2, Q("1 in")),
    Sketcher.Constraint("DistanceX", 1, 2, 1, 1, Q("0.01 in")),
    Sketcher.Constraint("DistanceY", -1, 1, 2, 2, Q("2.5 in")),
    Sketcher.Constraint("DistanceY", 0, 2, 0, 1, Q("0.225 in")),
    Sketcher.Constraint("DistanceY", 8, 2, 8, 1, Q("0.223 in")),
])
pad2 = body.newObject("PartDesign::Pad", "Pad001")
pad2.Profile = sketch5
pad2.Length = Q("0.225 in")
doc.recompute()

mirrored2 = body.newObject("PartDesign::Mirrored", "Mirrored001")
mirrored2.Originals = [pocket3, pad2]
mirrored2.MirrorPlane = (doc.getObject("XZ_Plane"), [""])
body.Tip = mirrored2

doc.recompute()
